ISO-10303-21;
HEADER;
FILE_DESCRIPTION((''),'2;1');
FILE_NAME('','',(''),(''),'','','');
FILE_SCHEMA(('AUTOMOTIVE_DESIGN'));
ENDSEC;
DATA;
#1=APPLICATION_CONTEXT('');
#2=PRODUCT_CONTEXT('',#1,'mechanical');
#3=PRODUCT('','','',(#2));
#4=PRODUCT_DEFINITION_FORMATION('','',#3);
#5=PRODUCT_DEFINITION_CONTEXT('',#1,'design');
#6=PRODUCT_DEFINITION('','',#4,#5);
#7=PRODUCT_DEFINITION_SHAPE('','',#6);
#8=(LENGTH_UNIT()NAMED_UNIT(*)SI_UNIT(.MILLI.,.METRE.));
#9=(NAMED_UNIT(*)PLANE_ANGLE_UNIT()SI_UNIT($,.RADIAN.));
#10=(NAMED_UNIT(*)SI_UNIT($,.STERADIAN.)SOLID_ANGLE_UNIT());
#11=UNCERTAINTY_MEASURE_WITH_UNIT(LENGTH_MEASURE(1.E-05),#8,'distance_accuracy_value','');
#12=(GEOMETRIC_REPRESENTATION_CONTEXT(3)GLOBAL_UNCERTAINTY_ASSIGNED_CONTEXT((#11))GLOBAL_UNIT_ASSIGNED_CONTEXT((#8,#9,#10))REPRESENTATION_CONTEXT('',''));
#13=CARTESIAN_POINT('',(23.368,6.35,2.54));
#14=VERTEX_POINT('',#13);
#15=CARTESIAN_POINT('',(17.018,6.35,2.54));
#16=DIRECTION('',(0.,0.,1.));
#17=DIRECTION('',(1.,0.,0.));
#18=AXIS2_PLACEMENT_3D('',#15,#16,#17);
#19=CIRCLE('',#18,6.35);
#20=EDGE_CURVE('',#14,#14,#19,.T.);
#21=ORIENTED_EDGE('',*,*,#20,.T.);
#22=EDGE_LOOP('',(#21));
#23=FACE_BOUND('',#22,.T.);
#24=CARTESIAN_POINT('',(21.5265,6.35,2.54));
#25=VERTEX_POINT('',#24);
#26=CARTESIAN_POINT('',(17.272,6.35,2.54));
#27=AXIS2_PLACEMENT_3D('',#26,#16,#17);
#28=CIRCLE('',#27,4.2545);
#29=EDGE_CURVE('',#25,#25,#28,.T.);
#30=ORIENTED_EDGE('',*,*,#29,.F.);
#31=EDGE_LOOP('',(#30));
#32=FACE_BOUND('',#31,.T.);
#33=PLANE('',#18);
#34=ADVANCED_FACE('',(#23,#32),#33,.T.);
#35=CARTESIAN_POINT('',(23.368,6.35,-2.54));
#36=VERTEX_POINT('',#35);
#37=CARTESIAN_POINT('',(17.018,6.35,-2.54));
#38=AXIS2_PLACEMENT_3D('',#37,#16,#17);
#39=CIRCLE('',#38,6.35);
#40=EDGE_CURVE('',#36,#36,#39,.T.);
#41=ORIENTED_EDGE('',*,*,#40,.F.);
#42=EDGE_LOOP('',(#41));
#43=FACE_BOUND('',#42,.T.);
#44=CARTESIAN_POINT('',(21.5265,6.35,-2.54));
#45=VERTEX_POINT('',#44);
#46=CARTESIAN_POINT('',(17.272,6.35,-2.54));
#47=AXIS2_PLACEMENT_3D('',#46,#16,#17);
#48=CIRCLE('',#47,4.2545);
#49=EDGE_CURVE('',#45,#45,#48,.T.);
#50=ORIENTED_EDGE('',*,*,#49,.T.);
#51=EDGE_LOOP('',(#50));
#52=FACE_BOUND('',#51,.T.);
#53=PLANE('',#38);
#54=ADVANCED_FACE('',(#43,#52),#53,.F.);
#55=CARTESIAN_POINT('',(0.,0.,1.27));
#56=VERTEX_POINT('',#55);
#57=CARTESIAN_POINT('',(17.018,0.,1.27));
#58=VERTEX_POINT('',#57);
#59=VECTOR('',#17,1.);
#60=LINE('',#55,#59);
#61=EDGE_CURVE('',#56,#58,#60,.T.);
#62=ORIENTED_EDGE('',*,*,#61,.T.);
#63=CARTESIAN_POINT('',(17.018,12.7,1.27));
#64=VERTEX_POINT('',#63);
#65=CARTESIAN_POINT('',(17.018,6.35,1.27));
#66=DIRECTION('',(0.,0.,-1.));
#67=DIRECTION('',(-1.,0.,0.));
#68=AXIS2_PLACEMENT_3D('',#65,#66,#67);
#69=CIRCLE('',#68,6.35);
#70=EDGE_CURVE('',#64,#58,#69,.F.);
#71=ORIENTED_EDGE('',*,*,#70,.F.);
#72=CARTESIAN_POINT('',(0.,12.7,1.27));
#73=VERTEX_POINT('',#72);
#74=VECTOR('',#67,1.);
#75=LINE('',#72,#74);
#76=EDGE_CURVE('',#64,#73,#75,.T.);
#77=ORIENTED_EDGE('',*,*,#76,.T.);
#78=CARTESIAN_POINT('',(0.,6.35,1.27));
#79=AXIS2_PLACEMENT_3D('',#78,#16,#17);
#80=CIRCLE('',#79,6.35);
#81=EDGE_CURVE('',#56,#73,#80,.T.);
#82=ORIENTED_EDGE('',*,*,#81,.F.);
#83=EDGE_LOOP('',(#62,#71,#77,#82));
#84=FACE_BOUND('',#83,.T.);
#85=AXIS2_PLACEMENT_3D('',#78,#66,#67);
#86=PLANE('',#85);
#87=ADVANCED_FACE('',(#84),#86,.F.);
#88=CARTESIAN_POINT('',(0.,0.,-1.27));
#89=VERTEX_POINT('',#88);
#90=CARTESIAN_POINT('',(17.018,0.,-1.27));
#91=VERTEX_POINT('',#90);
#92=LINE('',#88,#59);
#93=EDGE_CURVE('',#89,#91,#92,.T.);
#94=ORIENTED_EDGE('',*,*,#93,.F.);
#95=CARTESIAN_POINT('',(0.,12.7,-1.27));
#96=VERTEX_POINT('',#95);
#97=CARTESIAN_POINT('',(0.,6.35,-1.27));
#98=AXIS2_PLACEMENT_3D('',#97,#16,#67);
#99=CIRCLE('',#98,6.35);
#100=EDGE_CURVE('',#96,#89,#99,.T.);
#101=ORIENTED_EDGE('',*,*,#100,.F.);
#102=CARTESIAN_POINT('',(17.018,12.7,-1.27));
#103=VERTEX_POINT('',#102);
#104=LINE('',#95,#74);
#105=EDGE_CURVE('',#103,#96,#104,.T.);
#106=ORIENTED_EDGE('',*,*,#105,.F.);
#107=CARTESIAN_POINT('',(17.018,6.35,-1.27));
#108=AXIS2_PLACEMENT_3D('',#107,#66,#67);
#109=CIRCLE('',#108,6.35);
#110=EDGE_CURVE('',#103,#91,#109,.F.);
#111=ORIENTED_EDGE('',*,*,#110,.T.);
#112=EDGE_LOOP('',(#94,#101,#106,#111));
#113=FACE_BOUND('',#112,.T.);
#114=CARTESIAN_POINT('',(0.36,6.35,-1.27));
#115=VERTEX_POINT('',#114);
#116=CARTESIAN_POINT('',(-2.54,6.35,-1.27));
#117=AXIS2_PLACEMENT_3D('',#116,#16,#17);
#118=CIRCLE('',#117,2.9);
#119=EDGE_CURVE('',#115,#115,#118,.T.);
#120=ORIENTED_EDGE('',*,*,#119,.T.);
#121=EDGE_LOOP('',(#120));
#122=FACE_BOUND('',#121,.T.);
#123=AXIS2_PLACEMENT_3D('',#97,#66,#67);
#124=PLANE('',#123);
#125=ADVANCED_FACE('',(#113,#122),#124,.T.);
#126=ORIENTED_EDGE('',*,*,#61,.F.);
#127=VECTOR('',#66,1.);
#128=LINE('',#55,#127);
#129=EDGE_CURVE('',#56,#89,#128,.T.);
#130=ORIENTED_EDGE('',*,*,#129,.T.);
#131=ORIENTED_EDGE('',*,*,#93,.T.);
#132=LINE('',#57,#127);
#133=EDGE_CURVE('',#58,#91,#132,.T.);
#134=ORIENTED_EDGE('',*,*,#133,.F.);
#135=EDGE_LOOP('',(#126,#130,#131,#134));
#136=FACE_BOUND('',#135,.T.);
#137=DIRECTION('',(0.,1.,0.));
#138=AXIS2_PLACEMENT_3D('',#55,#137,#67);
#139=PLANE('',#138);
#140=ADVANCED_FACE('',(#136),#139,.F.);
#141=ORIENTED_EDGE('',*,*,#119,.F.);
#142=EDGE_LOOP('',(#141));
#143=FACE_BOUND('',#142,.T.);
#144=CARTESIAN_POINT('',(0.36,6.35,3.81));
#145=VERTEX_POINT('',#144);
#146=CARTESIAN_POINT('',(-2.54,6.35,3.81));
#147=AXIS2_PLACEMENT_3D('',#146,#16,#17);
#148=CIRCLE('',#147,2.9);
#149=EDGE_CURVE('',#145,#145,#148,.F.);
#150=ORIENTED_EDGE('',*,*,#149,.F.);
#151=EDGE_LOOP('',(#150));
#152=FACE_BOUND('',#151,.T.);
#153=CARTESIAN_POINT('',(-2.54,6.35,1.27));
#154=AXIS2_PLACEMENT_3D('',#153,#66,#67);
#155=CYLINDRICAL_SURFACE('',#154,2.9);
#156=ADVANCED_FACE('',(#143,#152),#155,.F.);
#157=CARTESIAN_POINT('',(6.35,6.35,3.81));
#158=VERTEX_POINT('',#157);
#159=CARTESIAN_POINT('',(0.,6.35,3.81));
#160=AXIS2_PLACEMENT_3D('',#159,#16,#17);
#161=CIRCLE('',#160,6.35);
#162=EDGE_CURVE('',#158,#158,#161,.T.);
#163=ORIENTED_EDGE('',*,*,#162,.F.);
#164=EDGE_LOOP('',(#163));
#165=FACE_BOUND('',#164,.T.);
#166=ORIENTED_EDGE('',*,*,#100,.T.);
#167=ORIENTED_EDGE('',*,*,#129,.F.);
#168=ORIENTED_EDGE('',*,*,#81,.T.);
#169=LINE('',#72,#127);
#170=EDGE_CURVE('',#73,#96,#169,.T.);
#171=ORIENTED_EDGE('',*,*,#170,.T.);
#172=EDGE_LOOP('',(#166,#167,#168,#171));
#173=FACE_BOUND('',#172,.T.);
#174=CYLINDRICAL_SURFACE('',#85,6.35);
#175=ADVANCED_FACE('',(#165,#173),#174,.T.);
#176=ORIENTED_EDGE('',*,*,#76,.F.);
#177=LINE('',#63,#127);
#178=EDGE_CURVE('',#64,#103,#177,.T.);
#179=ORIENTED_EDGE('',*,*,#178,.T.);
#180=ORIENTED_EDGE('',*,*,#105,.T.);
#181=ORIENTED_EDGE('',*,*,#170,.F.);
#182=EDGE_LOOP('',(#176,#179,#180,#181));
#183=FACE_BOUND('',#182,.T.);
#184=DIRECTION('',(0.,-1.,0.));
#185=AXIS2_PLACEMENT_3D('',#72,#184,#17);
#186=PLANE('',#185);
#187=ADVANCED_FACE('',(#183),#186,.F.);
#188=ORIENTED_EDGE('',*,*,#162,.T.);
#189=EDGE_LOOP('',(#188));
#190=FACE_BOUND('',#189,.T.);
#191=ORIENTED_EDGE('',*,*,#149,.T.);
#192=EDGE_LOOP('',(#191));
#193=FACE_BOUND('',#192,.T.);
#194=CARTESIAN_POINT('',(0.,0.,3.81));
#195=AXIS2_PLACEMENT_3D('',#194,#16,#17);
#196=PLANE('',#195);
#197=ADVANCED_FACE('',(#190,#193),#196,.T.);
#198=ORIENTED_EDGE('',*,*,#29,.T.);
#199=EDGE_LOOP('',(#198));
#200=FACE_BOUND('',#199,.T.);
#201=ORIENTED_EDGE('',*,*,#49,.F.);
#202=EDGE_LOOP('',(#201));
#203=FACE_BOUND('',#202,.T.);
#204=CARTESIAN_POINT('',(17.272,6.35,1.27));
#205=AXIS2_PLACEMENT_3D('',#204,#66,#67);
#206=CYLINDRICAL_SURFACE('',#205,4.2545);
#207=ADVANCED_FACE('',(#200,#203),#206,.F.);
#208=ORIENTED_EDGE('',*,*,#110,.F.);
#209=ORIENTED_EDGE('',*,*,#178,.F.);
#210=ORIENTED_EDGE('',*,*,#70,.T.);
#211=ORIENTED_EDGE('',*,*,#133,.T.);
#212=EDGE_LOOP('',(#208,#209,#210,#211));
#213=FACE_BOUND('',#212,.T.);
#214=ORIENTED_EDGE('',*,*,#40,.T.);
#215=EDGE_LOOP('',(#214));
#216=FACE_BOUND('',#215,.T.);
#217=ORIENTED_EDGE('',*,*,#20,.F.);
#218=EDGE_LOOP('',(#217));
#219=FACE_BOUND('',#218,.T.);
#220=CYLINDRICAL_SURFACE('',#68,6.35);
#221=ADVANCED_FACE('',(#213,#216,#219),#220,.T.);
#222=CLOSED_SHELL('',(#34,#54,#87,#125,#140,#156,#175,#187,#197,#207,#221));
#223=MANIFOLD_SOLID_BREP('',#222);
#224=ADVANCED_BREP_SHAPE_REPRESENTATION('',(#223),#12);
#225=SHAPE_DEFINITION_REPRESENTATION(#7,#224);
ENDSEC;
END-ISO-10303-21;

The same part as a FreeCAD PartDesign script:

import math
import FreeCAD as App
import Part
import Sketcher

V = App.Vector
Q = App.Units.Quantity

doc = App.newDocument("Part")
body = doc.addObject("PartDesign::Body", "Body")

# Sketch on XY plane
sketch1 = body.newObject("Sketcher::SketchObject", "Sketch")
sketch1.AttachmentSupport = (doc.getObject("XY_Plane"), [""])
sketch1.MapMode = "FlatFace"
sketch1.addGeometry(Part.LineSegment(V(17, 12.7, 0), V(0, 12.7, 0)), False)
sketch1.addGeometry(Part.ArcOfCircle(Part.Circle(V(0, 6.3, 0), V(0, 0, 1), 6.3), math.radians(90), math.radians(270)), False)
sketch1.addGeometry(Part.LineSegment(V(0, 0, 0), V(17, 0, 0)), False)
sketch1.addGeometry(Part.ArcOfCircle(Part.Circle(V(17, 6.3, 0), V(0, 0, 1), 6.3), math.radians(-90), math.radians(90)), False)
sketch1.addGeometry(Part.Circle(V(17.3, 6.3, 0), V(0, 0, 1), 4.3), False)
sketch1.addGeometry(Part.Circle(V(-2.5, 6.3, 0), V(0, 0, 1), 2.9), False)
sketch1.addConstraint(Sketcher.Constraint("Tangent", 0, 2, 1, 1))
sketch1.addConstraint(Sketcher.Constraint("Tangent", 1, 2, 2, 1))
sketch1.addConstraint(Sketcher.Constraint("Tangent", 2, 2, 3, 1))
sketch1.addConstraint(Sketcher.Constraint("Tangent", 3, 2, 0, 1))
sketch1.addConstraint(Sketcher.Constraint("Horizontal", 0))
sketch1.addConstraint(Sketcher.Constraint("Horizontal", 2))
sketch1.addConstraint(Sketcher.Constraint("Coincident", 1, 2, -1, 1))
sketch1.addConstraint(Sketcher.Constraint("Horizontal", 3, 3, 4, 3))
sketch1.addConstraint(Sketcher.Constraint("Horizontal", 4, 3, 5, 3))
sketch1.addConstraint(Sketcher.Constraint("Radius", 1, Q("0.25 in")))
sketch1.addConstraint(Sketcher.Constraint("Diameter", 4, Q("0.335 in")))
sketch1.addConstraint(Sketcher.Constraint("DistanceX", 0, 2, 0, 1, Q("0.67 in")))
sketch1.addConstraint(Sketcher.Constraint("DistanceX", 5, 3, -1, 1, Q("0.1 in")))
sketch1.addConstraint(Sketcher.Constraint("Diameter", 5, Q("5.8 mm")))
sketch1.addConstraint(Sketcher.Constraint("DistanceX", -1, 1, 4, 3, Q("0.68 in")))
pad1 = body.newObject("PartDesign::Pad", "Pad")
pad1.Profile = sketch1
pad1.Length = Q("0.1 in")
pad1.Midplane = True

# Sketch on XY plane
sketch2 = body.newObject("Sketcher::SketchObject", "Sketch001")
sketch2.AttachmentSupport = (doc.getObject("XY_Plane"), [""])
sketch2.MapMode = "FlatFace"
sketch2.AttachmentOffset = App.Placement(V(0, 0, 0.15 * 25.4), App.Rotation())
sketch2.addGeometry(Part.ArcOfCircle(Part.Circle(V(0, 6.3, 0), V(0, 0, 1), 6.3), math.radians(-90), math.radians(0)), False)
sketch2.addGeometry(Part.ArcOfCircle(Part.Circle(V(0, 6.4, 0), V(0, 0, 1), 6.3), math.radians(0), math.radians(90)), False)
sketch2.addGeometry(Part.ArcOfCircle(Part.Circle(V(0, 6.3, 0), V(0, 0, 1), 6.3), math.radians(90), math.radians(270)), False)
sketch2.addGeometry(Part.Circle(V(-2.5, 6.3, 0), V(0, 0, 1), 2.9), False)
sketch2.addConstraint(Sketcher.Constraint("Tangent", 0, 2, 1, 1))
sketch2.addConstraint(Sketcher.Constraint("Tangent", 1, 2, 2, 1))
sketch2.addConstraint(Sketcher.Constraint("Tangent", 2, 2, 0, 1))
sketch2.addConstraint(Sketcher.Constraint("Coincident", 2, 2, -1, 1))
sketch2.addConstraint(Sketcher.Constraint("PointOnObject", 0, 3, -2))
sketch2.addConstraint(Sketcher.Constraint("PointOnObject", 1, 2, -2))
sketch2.addConstraint(Sketcher.Constraint("Horizontal", 2, 3, 3, 3))
sketch2.addConstraint(Sketcher.Constraint("Horizontal", 3, 3, 0, 2))
sketch2.addConstraint(Sketcher.Constraint("Radius", 0, Q("0.25 in")))
sketch2.addConstraint(Sketcher.Constraint("DistanceX", 3, 3, -1, 1, Q("0.1 in")))
sketch2.addConstraint(Sketcher.Constraint("Diameter", 3, Q("5.8 mm")))
pad2 = body.newObject("PartDesign::Pad", "Pad001")
pad2.Profile = sketch2
pad2.Length = Q("0.1 in")
pad2.Reversed = True

# Sketch on XY plane
sketch3 = body.newObject("Sketcher::SketchObject", "Sketch002")
sketch3.AttachmentSupport = (doc.getObject("XY_Plane"), [""])
sketch3.MapMode = "FlatFace"
sketch3.addGeometry(Part.Circle(V(17, 6.3, 0), V(0, 0, 1), 6.3), False)
sketch3.addGeometry(Part.Circle(V(17.3, 6.3, 0), V(0, 0, 1), 4.3), False)
sketch3.addConstraint(Sketcher.Constraint("Horizontal", 0, 3, 1, 3))
sketch3.addConstraint(Sketcher.Constraint("Diameter", 0, Q("0.5 in")))
sketch3.addConstraint(Sketcher.Constraint("Diameter", 1, Q("0.335 in")))
sketch3.addConstraint(Sketcher.Constraint("DistanceX", -1, 1, 0, 3, Q("0.67 in")))
sketch3.addConstraint(Sketcher.Constraint("DistanceY", -1, 1, 0, 3, Q("0.25 in")))
sketch3.addConstraint(Sketcher.Constraint("DistanceX", -1, 1, 1, 3, Q("0.68 in")))
pad3 = body.newObject("PartDesign::Pad", "Pad002")
pad3.Profile = sketch3
pad3.Length = Q("0.2 in")
pad3.Midplane = True

doc.recompute()
